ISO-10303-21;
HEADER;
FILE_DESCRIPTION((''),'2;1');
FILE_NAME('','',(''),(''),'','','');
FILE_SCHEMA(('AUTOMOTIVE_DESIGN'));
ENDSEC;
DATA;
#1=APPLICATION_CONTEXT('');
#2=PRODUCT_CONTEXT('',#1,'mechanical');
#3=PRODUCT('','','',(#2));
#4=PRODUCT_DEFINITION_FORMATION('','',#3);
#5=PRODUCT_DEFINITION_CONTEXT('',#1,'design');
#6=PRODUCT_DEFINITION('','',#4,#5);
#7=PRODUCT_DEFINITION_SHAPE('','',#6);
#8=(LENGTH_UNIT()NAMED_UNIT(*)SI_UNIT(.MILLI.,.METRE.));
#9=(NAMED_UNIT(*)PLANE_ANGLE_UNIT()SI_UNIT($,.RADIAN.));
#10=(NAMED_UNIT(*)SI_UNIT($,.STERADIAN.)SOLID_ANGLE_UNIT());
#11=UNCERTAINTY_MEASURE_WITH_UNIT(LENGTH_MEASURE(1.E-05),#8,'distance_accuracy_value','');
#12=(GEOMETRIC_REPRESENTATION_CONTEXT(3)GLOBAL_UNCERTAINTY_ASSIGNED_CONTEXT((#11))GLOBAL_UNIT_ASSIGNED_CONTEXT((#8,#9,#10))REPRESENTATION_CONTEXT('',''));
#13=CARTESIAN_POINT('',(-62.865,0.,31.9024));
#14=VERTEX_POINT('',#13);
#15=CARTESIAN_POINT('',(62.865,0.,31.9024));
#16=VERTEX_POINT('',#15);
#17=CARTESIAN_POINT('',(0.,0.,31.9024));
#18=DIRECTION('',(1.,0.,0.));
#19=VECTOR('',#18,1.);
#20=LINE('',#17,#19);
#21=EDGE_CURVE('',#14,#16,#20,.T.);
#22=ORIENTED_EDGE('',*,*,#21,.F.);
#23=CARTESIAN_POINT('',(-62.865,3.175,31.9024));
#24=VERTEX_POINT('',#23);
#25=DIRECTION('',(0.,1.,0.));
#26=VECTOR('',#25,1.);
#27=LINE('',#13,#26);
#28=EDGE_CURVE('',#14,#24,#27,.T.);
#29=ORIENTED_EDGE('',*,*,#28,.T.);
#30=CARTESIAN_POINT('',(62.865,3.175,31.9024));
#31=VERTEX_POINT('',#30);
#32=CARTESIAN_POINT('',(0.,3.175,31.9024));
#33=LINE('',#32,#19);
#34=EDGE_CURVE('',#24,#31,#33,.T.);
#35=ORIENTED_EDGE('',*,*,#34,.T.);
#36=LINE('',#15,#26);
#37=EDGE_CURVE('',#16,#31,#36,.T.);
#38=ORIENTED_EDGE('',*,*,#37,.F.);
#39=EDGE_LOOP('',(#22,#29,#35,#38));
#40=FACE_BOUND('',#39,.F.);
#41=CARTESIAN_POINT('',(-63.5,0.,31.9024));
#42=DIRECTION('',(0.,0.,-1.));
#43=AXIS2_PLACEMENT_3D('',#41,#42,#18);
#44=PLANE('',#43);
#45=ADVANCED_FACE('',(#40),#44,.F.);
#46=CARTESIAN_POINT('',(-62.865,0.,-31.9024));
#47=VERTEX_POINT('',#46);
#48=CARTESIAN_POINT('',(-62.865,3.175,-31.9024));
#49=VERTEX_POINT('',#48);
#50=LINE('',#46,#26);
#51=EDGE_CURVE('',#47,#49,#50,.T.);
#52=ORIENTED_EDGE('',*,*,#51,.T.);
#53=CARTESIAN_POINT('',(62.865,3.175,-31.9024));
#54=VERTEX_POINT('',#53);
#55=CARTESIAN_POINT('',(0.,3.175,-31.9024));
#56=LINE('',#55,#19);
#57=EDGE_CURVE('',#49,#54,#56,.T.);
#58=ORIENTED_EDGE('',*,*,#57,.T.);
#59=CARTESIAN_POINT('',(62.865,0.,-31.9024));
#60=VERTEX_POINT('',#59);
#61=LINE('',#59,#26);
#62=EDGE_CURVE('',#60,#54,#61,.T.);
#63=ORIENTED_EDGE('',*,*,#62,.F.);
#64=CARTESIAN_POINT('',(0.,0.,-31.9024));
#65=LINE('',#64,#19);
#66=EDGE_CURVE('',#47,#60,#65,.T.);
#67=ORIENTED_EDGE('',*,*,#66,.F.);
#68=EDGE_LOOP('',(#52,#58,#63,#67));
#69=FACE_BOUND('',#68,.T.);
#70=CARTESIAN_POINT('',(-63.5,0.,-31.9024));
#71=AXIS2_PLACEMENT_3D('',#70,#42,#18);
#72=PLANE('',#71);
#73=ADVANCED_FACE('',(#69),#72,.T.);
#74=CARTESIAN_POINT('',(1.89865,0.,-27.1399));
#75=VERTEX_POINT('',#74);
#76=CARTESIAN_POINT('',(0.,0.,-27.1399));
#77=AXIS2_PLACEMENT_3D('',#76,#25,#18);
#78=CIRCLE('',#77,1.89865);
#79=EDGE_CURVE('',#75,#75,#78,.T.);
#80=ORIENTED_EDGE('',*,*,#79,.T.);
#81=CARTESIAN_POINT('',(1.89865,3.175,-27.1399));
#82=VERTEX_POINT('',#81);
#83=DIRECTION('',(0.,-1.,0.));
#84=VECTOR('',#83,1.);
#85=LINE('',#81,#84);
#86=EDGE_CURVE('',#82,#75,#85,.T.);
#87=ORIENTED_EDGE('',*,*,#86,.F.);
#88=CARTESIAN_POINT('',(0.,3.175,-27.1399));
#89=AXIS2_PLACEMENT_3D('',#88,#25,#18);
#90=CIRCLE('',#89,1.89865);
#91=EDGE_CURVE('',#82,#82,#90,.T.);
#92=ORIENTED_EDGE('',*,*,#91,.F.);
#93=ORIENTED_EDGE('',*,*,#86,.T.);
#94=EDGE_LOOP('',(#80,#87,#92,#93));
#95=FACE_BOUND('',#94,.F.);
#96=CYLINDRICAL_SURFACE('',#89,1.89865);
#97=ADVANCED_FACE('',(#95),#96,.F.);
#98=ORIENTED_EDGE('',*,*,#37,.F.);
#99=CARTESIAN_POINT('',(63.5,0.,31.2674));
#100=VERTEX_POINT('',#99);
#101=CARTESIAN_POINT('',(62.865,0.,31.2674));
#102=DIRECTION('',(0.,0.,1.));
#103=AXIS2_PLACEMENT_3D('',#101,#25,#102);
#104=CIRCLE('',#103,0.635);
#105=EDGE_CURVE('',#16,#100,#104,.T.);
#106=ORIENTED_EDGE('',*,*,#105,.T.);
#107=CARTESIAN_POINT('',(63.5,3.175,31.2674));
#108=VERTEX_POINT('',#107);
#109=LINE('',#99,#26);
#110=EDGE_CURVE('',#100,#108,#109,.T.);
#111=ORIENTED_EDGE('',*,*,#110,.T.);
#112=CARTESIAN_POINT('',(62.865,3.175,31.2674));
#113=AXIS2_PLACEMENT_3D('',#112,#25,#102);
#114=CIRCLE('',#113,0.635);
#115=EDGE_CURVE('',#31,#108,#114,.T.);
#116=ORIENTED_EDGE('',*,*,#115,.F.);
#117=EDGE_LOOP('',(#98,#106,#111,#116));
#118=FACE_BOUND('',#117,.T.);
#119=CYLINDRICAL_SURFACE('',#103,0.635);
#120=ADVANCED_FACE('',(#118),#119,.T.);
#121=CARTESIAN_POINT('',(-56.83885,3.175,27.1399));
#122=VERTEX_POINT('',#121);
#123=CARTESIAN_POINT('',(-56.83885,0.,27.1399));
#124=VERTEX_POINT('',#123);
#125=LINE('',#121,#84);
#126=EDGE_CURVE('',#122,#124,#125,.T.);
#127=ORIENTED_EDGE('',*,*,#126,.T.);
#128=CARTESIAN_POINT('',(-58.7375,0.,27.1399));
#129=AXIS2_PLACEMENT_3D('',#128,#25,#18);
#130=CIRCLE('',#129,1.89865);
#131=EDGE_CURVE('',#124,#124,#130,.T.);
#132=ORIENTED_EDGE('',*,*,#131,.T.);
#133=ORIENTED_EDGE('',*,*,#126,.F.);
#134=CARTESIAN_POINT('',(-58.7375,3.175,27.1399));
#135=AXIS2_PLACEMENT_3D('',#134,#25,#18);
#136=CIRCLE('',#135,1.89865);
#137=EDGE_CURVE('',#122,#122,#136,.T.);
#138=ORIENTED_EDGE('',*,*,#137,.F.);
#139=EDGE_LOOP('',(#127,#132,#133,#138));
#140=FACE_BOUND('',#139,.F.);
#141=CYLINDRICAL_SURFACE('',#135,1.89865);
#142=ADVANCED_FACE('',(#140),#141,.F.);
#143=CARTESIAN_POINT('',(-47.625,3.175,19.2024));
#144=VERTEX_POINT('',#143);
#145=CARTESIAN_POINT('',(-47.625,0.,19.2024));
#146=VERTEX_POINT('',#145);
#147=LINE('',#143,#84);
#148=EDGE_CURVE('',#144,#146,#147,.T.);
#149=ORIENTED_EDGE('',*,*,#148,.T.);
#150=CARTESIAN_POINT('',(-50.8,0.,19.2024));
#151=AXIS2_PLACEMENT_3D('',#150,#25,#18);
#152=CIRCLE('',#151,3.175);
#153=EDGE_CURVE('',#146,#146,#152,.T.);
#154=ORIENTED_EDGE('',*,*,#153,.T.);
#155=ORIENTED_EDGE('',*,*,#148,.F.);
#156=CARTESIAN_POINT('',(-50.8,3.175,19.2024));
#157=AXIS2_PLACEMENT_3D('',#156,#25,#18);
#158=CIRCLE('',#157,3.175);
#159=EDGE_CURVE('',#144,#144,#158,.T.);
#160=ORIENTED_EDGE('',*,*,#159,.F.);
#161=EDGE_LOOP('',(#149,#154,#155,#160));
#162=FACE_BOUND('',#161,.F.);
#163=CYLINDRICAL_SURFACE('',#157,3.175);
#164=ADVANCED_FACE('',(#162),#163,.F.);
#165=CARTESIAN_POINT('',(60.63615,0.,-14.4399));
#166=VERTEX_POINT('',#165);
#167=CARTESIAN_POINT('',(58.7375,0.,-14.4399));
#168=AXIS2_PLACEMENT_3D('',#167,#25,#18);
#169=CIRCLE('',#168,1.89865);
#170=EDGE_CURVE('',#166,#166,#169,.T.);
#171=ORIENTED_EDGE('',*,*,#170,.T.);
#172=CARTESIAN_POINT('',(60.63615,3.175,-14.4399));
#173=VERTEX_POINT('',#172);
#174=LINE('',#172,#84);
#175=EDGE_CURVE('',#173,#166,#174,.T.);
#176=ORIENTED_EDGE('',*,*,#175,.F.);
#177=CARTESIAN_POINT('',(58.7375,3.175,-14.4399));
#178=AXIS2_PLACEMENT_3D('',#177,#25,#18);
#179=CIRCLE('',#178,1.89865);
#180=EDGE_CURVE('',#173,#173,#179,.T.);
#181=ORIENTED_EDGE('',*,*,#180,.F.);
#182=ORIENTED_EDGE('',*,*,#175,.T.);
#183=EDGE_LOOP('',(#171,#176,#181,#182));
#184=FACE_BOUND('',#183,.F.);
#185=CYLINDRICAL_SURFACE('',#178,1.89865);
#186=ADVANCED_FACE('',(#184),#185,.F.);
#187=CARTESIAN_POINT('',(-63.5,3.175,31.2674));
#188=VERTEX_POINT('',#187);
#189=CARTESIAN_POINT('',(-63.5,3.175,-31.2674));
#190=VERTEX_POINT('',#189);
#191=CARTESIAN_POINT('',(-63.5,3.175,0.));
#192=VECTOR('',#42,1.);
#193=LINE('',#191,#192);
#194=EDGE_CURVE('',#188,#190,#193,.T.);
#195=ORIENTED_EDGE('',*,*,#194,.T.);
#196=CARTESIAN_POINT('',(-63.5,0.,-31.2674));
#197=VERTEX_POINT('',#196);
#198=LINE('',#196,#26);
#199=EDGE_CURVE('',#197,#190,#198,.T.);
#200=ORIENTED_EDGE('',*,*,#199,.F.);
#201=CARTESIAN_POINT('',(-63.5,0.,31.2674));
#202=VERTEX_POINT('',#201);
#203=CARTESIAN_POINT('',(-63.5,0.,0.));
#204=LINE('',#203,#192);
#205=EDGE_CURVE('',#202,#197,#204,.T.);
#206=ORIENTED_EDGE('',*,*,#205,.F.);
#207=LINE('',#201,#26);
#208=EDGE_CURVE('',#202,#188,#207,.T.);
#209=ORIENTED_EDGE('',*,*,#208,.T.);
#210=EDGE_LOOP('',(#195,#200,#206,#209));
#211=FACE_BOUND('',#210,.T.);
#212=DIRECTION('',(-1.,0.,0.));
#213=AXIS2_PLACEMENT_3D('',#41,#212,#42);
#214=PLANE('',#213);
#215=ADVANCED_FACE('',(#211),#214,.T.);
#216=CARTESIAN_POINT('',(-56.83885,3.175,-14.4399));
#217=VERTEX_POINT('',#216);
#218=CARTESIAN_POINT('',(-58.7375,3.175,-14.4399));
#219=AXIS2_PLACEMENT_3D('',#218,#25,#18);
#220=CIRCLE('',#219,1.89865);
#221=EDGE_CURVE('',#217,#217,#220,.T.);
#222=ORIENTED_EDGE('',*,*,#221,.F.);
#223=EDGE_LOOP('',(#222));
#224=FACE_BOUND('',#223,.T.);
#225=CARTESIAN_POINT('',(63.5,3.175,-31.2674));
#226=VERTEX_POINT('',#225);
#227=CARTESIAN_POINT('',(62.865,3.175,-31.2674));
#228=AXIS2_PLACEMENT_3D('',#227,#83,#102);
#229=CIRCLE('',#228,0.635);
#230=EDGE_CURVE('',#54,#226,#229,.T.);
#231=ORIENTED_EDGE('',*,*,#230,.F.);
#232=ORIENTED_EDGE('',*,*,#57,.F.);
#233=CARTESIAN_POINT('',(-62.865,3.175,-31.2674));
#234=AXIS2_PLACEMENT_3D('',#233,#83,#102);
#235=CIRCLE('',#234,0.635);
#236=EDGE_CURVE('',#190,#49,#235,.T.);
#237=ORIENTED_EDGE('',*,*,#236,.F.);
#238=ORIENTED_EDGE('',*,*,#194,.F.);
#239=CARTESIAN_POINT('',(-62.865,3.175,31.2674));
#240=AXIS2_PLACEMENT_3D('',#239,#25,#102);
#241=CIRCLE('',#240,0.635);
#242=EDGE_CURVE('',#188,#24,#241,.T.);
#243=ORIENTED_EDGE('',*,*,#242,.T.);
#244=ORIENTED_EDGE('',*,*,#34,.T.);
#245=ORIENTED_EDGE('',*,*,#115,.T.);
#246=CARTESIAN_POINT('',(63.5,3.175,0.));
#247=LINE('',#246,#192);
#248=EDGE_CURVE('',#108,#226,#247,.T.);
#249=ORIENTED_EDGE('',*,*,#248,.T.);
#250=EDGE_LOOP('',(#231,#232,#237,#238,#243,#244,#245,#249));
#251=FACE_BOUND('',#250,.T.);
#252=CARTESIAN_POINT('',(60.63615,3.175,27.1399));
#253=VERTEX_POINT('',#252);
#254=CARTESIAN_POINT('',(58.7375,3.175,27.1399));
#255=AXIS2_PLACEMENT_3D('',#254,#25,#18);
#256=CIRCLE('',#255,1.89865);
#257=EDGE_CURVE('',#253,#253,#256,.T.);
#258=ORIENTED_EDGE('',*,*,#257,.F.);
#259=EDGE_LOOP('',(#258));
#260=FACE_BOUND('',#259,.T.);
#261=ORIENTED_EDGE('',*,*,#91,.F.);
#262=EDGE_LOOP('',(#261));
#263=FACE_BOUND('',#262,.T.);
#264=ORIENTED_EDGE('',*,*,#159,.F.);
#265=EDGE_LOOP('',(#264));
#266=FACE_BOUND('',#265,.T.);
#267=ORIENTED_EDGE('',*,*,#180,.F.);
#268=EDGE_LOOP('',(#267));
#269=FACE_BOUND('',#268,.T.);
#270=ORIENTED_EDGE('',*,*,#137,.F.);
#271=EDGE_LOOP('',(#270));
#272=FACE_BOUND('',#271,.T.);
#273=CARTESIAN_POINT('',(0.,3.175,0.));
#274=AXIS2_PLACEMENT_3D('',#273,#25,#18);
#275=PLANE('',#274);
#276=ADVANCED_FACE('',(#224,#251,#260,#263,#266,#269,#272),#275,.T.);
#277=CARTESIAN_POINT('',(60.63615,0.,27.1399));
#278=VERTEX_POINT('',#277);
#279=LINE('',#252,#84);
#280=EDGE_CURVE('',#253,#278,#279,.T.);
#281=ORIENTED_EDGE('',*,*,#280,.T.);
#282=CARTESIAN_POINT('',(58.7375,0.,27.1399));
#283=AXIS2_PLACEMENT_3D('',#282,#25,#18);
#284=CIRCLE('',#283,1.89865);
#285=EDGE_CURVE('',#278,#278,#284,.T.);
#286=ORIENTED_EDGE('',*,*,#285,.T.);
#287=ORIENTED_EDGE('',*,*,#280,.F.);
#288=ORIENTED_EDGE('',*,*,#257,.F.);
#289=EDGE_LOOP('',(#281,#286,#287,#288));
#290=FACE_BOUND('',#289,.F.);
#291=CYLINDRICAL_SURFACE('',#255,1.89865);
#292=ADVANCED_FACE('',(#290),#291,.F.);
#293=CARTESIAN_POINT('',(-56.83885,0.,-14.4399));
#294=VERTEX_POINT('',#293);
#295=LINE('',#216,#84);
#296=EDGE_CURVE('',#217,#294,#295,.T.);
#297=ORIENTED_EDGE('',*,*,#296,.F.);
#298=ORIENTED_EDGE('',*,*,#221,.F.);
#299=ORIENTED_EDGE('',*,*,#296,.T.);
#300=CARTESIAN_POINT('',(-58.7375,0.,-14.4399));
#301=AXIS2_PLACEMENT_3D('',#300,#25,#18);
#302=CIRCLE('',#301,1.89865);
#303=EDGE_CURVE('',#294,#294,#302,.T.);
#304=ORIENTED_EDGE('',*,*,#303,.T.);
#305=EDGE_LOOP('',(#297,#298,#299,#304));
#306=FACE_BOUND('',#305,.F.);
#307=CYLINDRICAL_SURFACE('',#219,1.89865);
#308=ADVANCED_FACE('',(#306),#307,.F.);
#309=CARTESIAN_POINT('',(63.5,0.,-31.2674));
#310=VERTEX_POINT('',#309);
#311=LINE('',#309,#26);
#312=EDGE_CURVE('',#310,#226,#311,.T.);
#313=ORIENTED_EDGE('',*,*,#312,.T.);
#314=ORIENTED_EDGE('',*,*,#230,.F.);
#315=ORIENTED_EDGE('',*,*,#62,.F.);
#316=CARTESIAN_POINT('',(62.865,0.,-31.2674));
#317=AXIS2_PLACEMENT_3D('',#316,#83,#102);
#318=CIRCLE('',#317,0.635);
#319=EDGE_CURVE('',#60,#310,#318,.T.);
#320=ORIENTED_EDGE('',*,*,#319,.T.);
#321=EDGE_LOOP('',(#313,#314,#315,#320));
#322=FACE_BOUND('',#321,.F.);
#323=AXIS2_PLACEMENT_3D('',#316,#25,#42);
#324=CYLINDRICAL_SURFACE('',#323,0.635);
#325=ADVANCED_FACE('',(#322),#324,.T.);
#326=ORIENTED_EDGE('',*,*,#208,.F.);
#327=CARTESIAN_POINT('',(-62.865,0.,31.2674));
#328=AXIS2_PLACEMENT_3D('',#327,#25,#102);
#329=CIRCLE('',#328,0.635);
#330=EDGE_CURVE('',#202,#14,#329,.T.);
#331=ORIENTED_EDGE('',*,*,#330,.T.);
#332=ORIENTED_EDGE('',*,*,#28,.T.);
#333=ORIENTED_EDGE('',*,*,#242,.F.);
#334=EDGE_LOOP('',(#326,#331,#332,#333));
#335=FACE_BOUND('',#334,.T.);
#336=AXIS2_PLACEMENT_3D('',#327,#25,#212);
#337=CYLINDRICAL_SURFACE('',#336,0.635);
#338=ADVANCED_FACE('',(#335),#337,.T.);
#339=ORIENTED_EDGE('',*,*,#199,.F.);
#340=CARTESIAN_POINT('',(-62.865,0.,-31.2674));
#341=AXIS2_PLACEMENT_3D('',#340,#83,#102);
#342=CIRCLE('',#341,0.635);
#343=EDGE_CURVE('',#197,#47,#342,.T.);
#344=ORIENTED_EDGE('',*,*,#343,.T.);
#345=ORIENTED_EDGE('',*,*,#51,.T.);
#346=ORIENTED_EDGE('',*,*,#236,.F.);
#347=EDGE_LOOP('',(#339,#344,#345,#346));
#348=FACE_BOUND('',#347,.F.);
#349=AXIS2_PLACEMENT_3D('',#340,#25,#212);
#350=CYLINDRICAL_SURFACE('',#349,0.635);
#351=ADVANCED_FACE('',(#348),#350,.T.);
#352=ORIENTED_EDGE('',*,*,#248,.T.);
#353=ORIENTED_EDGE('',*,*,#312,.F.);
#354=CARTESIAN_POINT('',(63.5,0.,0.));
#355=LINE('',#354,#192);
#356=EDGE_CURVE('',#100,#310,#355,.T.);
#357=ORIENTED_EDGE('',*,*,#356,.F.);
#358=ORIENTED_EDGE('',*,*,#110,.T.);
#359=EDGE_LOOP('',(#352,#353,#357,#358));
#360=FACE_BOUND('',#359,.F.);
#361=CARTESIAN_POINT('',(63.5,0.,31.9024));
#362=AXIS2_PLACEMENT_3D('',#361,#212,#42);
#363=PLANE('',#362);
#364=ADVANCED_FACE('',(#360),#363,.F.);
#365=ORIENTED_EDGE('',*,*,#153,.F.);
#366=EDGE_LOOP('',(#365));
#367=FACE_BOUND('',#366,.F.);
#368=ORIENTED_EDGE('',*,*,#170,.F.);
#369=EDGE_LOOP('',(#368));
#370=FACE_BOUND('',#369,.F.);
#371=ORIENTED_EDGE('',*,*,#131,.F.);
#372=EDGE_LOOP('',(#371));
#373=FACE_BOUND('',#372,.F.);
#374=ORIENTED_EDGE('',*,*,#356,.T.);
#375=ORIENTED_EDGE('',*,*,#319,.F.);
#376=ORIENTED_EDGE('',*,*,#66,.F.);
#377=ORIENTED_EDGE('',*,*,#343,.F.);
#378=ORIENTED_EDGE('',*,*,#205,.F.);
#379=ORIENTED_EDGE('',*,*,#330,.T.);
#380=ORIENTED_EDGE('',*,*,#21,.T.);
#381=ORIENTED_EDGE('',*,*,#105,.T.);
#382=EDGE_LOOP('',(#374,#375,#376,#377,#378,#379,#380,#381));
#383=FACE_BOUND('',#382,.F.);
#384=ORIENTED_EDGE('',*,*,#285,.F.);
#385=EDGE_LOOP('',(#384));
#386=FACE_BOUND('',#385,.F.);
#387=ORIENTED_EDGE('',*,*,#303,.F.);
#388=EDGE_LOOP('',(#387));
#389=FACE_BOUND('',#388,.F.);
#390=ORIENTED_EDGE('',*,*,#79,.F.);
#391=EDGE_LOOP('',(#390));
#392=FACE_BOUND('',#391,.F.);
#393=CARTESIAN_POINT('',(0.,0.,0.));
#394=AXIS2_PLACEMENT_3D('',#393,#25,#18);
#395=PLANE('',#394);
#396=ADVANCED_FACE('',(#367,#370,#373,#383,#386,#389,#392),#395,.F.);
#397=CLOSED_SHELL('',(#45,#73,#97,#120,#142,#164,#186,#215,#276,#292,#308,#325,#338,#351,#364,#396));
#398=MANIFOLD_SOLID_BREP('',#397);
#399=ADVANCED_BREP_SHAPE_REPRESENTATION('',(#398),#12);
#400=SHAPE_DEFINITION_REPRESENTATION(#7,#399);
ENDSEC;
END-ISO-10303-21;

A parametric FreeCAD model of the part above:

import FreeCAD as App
import Part
import Sketcher

V = App.Vector
Q = App.Units.Quantity


def edges_at(feature, points):
    """Names of the edges that pass closest to the given points."""
    edges = feature.Shape.Edges
    near = lambda p: min(range(len(edges)), key=lambda i: edges[i].distToShape(Part.Vertex(*p))[0])
    return sorted({f"Edge{near(p) + 1}" for p in points})


def add_polygon(sketch, points):
    """Adds a closed chain of lines whose ends are joined by coincident constraints."""
    first, n = sketch.GeometryCount, len(points)
    for a, b in zip(points, points[1:] + points[:1]):
        sketch.addGeometry(Part.LineSegment(App.Vector(*a, 0), App.Vector(*b, 0)), False)
    for i in range(n):
        sketch.addConstraint(Sketcher.Constraint("Coincident", first + i, 2, first + (i + 1) % n, 1))

doc = App.newDocument("Part")
params = doc.addObject("Spreadsheet::Sheet", "Params")
for row, (alias, value) in enumerate([
    ("sketch1_width", "5 in"),
    ("sketch1_height", "2.512 in"),
    ("pad1_length", "0.125 in"),
    ("sketch3_diameter", "0.25 in"),
    ("fillet_radius", "0.025 in"),
], start=1):
    params.set(f"A{row}", alias)
    params.set(f"B{row}", "=" + value)
    params.setAlias(f"B{row}", alias)

body = doc.addObject("PartDesign::Body", "Body")

# Sketch on XZ plane
sketch1 = body.newObject("Sketcher::SketchObject", "Sketch")
sketch1.AttachmentSupport = (doc.getObject("XZ_Plane"), [""])
sketch1.MapMode = "FlatFace"
add_polygon(sketch1, [(-63.5, -31.9024), (-63.5, 31.9024), (63.5, 31.9024), (63.5, -31.9024)])  # lines 0-3
sketch1.addConstraint(Sketcher.Constraint("Vertical", 0))
sketch1.addConstraint(Sketcher.Constraint("Horizontal", 1))
sketch1.addConstraint(Sketcher.Constraint("Vertical", 2))
sketch1.addConstraint(Sketcher.Constraint("Horizontal", 3))
sketch1.addConstraint(Sketcher.Constraint("Symmetric", 0, 2, 2, 2, -1, 1))
sketch1.addConstraint(Sketcher.Constraint("DistanceX", 1, 1, 1, 2, Q("5 in")))
sketch1.addConstraint(Sketcher.Constraint("DistanceY", 0, 1, 0, 2, Q("2.512 in")))
sketch1.setExpression("Constraints[9]", "Params.sketch1_width")
sketch1.setExpression("Constraints[10]", "Params.sketch1_height")
pad1 = body.newObject("PartDesign::Pad", "Pad")
pad1.Profile = sketch1
pad1.setExpression("Length", "Params.pad1_length")
pad1.Reversed = True

# Sketch on XZ plane
sketch2 = body.newObject("Sketcher::SketchObject", "Sketch001")
sketch2.AttachmentSupport = (doc.getObject("XZ_Plane"), [""])
sketch2.MapMode = "FlatFace"
sketch2.AttachmentOffset = App.Placement(V(0, 0, -0.125 * 25.4), App.Rotation())
sketch2.addGeometry(Part.Circle(V(-58.7375, 27.1399, 0), V(0, 0, 1), 1.89865), False)
sketch2.addGeometry(Part.Circle(V(-58.7375, -14.4399, 0), V(0, 0, 1), 1.89865), False)
sketch2.addGeometry(Part.Circle(V(58.7375, -14.4399, 0), V(0, 0, 1), 1.89865), False)
sketch2.addGeometry(Part.Circle(V(58.7375, 27.1399, 0), V(0, 0, 1), 1.89865), False)
sketch2.addGeometry(Part.Circle(V(0, -27.1399, 0), V(0, 0, 1), 1.89865), False)
sketch2.addConstraint(Sketcher.Constraint("Equal", 0, 1))
sketch2.addConstraint(Sketcher.Constraint("Equal", 1, 2))
sketch2.addConstraint(Sketcher.Constraint("Equal", 2, 3))
sketch2.addConstraint(Sketcher.Constraint("Equal", 3, 4))
sketch2.addConstraint(Sketcher.Constraint("Symmetric", 1, 3, 2, 3, -2))
sketch2.addConstraint(Sketcher.Constraint("Symmetric", 0, 3, 3, 3, -2))
sketch2.addConstraint(Sketcher.Constraint("PointOnObject", 4, 3, -2))
sketch2.addConstraint(Sketcher.Constraint("Vertical", 0, 3, 1, 3))
sketch2.addConstraint(Sketcher.Constraint("Diameter", 0, Q("0.1495 in")))
sketch2.addConstraint(Sketcher.Constraint("DistanceY", 4, 3, 1, 3, Q("0.5 in")))
sketch2.addConstraint(Sketcher.Constraint("DistanceX", 0, 3, -1, 1, Q("2.3125 in")))
sketch2.addConstraint(Sketcher.Constraint("DistanceY", 1, 3, 0, 3, Q("1.637 in")))
sketch2.addConstraint(Sketcher.Constraint("DistanceY", -1, 1, 0, 3, Q("1.0685 in")))
pocket1 = body.newObject("PartDesign::Pocket", "Pocket")
pocket1.Profile = sketch2
pocket1.Type = "ThroughAll"
pocket1.Reversed = True

# Sketch on XZ plane
sketch3 = body.newObject("Sketcher::SketchObject", "Sketch002")
sketch3.AttachmentSupport = (doc.getObject("XZ_Plane"), [""])
sketch3.MapMode = "FlatFace"
sketch3.AttachmentOffset = App.Placement(V(0, 0, -0.125 * 25.4), App.Rotation())
sketch3.addGeometry(Part.Circle(V(-50.8, 19.2024, 0), V(0, 0, 1), 3.175), False)
sketch3.addConstraint(Sketcher.Constraint("Diameter", 0, Q("0.25 in")))
sketch3.addConstraint(Sketcher.Constraint("DistanceX", 0, 3, -1, 1, Q("2 in")))
sketch3.addConstraint(Sketcher.Constraint("DistanceY", -1, 1, 0, 3, Q("0.756 in")))
sketch3.setExpression("Constraints[0]", "Params.sketch3_diameter")
pocket2 = body.newObject("PartDesign::Pocket", "Pocket001")
pocket2.Profile = sketch3
pocket2.Type = "ThroughAll"
pocket2.Reversed = True
doc.recompute()

fillet = body.newObject("PartDesign::Fillet", "Fillet")
fillet.Base = (pocket2, edges_at(pocket2, [
    (63.5, 1.587, 31.902),
    (-63.5, 1.587, 31.902),
    (-63.5, 1.587, -31.902),
    (63.5, 1.587, -31.902),
]))
fillet.setExpression("Radius", "Params.fillet_radius")

doc.recompute()
